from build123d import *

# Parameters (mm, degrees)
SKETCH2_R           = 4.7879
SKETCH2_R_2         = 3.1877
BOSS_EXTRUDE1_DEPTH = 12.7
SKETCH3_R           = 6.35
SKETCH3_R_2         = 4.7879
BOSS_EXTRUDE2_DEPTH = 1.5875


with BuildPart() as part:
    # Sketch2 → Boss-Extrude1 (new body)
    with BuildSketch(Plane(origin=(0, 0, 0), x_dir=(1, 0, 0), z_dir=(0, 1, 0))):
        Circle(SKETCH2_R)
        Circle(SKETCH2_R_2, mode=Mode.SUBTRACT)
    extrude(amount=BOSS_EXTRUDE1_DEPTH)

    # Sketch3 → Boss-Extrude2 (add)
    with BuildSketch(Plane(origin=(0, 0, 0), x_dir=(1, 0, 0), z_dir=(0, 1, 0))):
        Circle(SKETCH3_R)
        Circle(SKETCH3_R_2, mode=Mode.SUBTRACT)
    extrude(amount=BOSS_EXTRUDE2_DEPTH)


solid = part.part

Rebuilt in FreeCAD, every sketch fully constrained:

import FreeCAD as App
import Part
import Sketcher
Q = App.Units.Quantity

doc = App.newDocument("Part")
params = doc.addObject("Spreadsheet::Sheet", "Params")
for row, (alias, value) in enumerate([
    ("sketch1_diameter", "0.377 in"),
    ("sketch1_diameter2", "0.251 in"),
    ("pad1_length", "0.5 in"),
    ("sketch2_diameter", "0.5 in"),
    ("sketch2_diameter2", "0.377 in"),
    ("pad2_length", "0.0625 in"),
], start=1):
    params.set(f"A{row}", alias)
    params.set(f"B{row}", "=" + value)
    params.setAlias(f"B{row}", alias)

body = doc.addObject("PartDesign::Body", "Body")

sketch1 = body.newObject("Sketcher::SketchObject", "Sketch")
sketch1.AttachmentSupport = (doc.getObject("XZ_Plane"), [""])
sketch1.MapMode = "FlatFace"
sketch1.addGeometry(Part.Circle(App.Vector(0, 0, 0), App.Vector(0, 0, 1), 4.8), False)
sketch1.addGeometry(Part.Circle(App.Vector(0, 0, 0), App.Vector(0, 0, 1), 3.2), False)
sketch1.addConstraint(Sketcher.Constraint("Coincident", 0, 3, -1, 1))
sketch1.addConstraint(Sketcher.Constraint("Coincident", 1, 3, -1, 1))
sketch1.addConstraint(Sketcher.Constraint("Diameter", 0, Q("0.377 in")))
sketch1.addConstraint(Sketcher.Constraint("Diameter", 1, Q("0.251 in")))
sketch1.setExpression("Constraints[2]", "Params.sketch1_diameter")
sketch1.setExpression("Constraints[3]", "Params.sketch1_diameter2")
pad1 = body.newObject("PartDesign::Pad", "Pad")
pad1.Profile = sketch1
pad1.setExpression("Length", "Params.pad1_length")
pad1.Reversed = True

sketch2 = body.newObject("Sketcher::SketchObject", "Sketch001")
sketch2.AttachmentSupport = (doc.getObject("XZ_Plane"), [""])
sketch2.MapMode = "FlatFace"
sketch2.addGeometry(Part.Circle(App.Vector(0, 0, 0), App.Vector(0, 0, 1), 6.3), False)
sketch2.addGeometry(Part.Circle(App.Vector(0, 0, 0), App.Vector(0, 0, 1), 4.8), False)
sketch2.addConstraint(Sketcher.Constraint("Coincident", 0, 3, -1, 1))
sketch2.addConstraint(Sketcher.Constraint("Coincident", 1, 3, -1, 1))
sketch2.addConstraint(Sketcher.Constraint("Diameter", 0, Q("0.5 in")))
sketch2.addConstraint(Sketcher.Constraint("Diameter", 1, Q("0.377 in")))
sketch2.setExpression("Constraints[2]", "Params.sketch2_diameter")
sketch2.setExpression("Constraints[3]", "Params.sketch2_diameter2")
pad2 = body.newObject("PartDesign::Pad", "Pad001")
pad2.Profile = sketch2
pad2.setExpression("Length", "Params.pad2_length")
pad2.Reversed = True

doc.recompute()
